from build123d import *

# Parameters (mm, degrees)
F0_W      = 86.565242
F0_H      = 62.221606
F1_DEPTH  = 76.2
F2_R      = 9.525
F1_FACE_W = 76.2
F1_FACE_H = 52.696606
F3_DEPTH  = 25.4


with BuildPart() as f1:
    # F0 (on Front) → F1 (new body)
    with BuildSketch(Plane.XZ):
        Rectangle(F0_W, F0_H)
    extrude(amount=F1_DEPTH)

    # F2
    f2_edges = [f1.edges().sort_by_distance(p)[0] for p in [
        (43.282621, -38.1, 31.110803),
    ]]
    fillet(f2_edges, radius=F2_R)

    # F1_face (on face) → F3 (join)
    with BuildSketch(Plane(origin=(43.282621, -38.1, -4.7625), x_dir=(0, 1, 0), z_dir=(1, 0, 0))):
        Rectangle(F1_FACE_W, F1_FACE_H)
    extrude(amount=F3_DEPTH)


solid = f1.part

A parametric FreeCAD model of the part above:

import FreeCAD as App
import Part
import Sketcher

V = App.Vector
Q = App.Units.Quantity


def edges_at(feature, points):
    """Names of the edges that pass closest to the given points."""
    edges = feature.Shape.Edges
    near = lambda p: min(range(len(edges)), key=lambda i: edges[i].distToShape(Part.Vertex(*p))[0])
    return sorted({f"Edge{near(p) + 1}" for p in points})

doc = App.newDocument("Part")
body = doc.addObject("PartDesign::Body", "Body")

sketch1 = body.newObject("Sketcher::SketchObject", "Sketch")
sketch1.AttachmentSupport = (doc.getObject("XZ_Plane"), [""])
sketch1.MapMode = "FlatFace"
sketch1.addGeometry([
    Part.LineSegment(V(-43, 31, 0), V(-43, -31, 0)),
    Part.LineSegment(V(-43, -31, 0), V(43, -31, 0)),
    Part.LineSegment(V(43, -31, 0), V(43, 31, 0)),
    Part.LineSegment(V(43, 31, 0), V(-43, 31, 0)),
], False)
sketch1.addConstraint([
    Sketcher.Constraint("Coincident", 0, 2, 1, 1),
    Sketcher.Constraint("Coincident", 1, 2, 2, 1),
    Sketcher.Constraint("Coincident", 2, 2, 3, 1),
    Sketcher.Constraint("Coincident", 3, 2, 0, 1),
    Sketcher.Constraint("Vertical", 0),
    Sketcher.Constraint("Horizontal", 1),
    Sketcher.Constraint("Vertical", 2),
    Sketcher.Constraint("Horizontal", 3),
    Sketcher.Constraint("Symmetric", 0, 2, 2, 2, -1, 1),
    Sketcher.Constraint("DistanceX", 1, 1, 1, 2, 86.565242),
    Sketcher.Constraint("DistanceY", 0, 2, 0, 1, 62.221606),
])
pad1 = body.newObject("PartDesign::Pad", "Pad")
pad1.Profile = sketch1
pad1.Length = Q("3 in")
doc.recompute()

fillet = body.newObject("PartDesign::Fillet", "Fillet")
fillet.Base = (pad1, edges_at(pad1, [(43.283, -38.1, 31.111)]))
fillet.Radius = Q("0.375 in")

sketch2 = body.newObject("Sketcher::SketchObject", "Sketch001")
sketch2.AttachmentSupport = (doc.getObject("YZ_Plane"), [""])
sketch2.MapMode = "FlatFace"
sketch2.AttachmentOffset = App.Placement(V(0, 0, 43.282621), App.Rotation())
sketch2.addGeometry([
    Part.LineSegment(V(-76, 22, 0), V(-76, -31, 0)),
    Part.LineSegment(V(-76, -31, 0), V(0, -31, 0)),
    Part.LineSegment(V(0, -31, 0), V(0, 22, 0)),
    Part.LineSegment(V(0, 22, 0), V(-76, 22, 0)),
], False)
sketch2.addConstraint([
    Sketcher.Constraint("Coincident", 0, 2, 1, 1),
    Sketcher.Constraint("Coincident", 1, 2, 2, 1),
    Sketcher.Constraint("Coincident", 2, 2, 3, 1),
    Sketcher.Constraint("Coincident", 3, 2, 0, 1),
    Sketcher.Constraint("Vertical", 0),
    Sketcher.Constraint("Horizontal", 1),
    Sketcher.Constraint("Vertical", 2),
    Sketcher.Constraint("Horizontal", 3),
    Sketcher.Constraint("PointOnObject", 1, 2, -2),
    Sketcher.Constraint("DistanceX", 1, 1, 1, 2, Q("3 in")),
    Sketcher.Constraint("DistanceY", 0, 2, 0, 1, 52.696606),
    Sketcher.Constraint("DistanceY", 0, 2, -1, 1, 31.110803),
])
pad2 = body.newObject("PartDesign::Pad", "Pad001")
pad2.Profile = sketch2
pad2.Length = Q("1 in")

doc.recompute()
